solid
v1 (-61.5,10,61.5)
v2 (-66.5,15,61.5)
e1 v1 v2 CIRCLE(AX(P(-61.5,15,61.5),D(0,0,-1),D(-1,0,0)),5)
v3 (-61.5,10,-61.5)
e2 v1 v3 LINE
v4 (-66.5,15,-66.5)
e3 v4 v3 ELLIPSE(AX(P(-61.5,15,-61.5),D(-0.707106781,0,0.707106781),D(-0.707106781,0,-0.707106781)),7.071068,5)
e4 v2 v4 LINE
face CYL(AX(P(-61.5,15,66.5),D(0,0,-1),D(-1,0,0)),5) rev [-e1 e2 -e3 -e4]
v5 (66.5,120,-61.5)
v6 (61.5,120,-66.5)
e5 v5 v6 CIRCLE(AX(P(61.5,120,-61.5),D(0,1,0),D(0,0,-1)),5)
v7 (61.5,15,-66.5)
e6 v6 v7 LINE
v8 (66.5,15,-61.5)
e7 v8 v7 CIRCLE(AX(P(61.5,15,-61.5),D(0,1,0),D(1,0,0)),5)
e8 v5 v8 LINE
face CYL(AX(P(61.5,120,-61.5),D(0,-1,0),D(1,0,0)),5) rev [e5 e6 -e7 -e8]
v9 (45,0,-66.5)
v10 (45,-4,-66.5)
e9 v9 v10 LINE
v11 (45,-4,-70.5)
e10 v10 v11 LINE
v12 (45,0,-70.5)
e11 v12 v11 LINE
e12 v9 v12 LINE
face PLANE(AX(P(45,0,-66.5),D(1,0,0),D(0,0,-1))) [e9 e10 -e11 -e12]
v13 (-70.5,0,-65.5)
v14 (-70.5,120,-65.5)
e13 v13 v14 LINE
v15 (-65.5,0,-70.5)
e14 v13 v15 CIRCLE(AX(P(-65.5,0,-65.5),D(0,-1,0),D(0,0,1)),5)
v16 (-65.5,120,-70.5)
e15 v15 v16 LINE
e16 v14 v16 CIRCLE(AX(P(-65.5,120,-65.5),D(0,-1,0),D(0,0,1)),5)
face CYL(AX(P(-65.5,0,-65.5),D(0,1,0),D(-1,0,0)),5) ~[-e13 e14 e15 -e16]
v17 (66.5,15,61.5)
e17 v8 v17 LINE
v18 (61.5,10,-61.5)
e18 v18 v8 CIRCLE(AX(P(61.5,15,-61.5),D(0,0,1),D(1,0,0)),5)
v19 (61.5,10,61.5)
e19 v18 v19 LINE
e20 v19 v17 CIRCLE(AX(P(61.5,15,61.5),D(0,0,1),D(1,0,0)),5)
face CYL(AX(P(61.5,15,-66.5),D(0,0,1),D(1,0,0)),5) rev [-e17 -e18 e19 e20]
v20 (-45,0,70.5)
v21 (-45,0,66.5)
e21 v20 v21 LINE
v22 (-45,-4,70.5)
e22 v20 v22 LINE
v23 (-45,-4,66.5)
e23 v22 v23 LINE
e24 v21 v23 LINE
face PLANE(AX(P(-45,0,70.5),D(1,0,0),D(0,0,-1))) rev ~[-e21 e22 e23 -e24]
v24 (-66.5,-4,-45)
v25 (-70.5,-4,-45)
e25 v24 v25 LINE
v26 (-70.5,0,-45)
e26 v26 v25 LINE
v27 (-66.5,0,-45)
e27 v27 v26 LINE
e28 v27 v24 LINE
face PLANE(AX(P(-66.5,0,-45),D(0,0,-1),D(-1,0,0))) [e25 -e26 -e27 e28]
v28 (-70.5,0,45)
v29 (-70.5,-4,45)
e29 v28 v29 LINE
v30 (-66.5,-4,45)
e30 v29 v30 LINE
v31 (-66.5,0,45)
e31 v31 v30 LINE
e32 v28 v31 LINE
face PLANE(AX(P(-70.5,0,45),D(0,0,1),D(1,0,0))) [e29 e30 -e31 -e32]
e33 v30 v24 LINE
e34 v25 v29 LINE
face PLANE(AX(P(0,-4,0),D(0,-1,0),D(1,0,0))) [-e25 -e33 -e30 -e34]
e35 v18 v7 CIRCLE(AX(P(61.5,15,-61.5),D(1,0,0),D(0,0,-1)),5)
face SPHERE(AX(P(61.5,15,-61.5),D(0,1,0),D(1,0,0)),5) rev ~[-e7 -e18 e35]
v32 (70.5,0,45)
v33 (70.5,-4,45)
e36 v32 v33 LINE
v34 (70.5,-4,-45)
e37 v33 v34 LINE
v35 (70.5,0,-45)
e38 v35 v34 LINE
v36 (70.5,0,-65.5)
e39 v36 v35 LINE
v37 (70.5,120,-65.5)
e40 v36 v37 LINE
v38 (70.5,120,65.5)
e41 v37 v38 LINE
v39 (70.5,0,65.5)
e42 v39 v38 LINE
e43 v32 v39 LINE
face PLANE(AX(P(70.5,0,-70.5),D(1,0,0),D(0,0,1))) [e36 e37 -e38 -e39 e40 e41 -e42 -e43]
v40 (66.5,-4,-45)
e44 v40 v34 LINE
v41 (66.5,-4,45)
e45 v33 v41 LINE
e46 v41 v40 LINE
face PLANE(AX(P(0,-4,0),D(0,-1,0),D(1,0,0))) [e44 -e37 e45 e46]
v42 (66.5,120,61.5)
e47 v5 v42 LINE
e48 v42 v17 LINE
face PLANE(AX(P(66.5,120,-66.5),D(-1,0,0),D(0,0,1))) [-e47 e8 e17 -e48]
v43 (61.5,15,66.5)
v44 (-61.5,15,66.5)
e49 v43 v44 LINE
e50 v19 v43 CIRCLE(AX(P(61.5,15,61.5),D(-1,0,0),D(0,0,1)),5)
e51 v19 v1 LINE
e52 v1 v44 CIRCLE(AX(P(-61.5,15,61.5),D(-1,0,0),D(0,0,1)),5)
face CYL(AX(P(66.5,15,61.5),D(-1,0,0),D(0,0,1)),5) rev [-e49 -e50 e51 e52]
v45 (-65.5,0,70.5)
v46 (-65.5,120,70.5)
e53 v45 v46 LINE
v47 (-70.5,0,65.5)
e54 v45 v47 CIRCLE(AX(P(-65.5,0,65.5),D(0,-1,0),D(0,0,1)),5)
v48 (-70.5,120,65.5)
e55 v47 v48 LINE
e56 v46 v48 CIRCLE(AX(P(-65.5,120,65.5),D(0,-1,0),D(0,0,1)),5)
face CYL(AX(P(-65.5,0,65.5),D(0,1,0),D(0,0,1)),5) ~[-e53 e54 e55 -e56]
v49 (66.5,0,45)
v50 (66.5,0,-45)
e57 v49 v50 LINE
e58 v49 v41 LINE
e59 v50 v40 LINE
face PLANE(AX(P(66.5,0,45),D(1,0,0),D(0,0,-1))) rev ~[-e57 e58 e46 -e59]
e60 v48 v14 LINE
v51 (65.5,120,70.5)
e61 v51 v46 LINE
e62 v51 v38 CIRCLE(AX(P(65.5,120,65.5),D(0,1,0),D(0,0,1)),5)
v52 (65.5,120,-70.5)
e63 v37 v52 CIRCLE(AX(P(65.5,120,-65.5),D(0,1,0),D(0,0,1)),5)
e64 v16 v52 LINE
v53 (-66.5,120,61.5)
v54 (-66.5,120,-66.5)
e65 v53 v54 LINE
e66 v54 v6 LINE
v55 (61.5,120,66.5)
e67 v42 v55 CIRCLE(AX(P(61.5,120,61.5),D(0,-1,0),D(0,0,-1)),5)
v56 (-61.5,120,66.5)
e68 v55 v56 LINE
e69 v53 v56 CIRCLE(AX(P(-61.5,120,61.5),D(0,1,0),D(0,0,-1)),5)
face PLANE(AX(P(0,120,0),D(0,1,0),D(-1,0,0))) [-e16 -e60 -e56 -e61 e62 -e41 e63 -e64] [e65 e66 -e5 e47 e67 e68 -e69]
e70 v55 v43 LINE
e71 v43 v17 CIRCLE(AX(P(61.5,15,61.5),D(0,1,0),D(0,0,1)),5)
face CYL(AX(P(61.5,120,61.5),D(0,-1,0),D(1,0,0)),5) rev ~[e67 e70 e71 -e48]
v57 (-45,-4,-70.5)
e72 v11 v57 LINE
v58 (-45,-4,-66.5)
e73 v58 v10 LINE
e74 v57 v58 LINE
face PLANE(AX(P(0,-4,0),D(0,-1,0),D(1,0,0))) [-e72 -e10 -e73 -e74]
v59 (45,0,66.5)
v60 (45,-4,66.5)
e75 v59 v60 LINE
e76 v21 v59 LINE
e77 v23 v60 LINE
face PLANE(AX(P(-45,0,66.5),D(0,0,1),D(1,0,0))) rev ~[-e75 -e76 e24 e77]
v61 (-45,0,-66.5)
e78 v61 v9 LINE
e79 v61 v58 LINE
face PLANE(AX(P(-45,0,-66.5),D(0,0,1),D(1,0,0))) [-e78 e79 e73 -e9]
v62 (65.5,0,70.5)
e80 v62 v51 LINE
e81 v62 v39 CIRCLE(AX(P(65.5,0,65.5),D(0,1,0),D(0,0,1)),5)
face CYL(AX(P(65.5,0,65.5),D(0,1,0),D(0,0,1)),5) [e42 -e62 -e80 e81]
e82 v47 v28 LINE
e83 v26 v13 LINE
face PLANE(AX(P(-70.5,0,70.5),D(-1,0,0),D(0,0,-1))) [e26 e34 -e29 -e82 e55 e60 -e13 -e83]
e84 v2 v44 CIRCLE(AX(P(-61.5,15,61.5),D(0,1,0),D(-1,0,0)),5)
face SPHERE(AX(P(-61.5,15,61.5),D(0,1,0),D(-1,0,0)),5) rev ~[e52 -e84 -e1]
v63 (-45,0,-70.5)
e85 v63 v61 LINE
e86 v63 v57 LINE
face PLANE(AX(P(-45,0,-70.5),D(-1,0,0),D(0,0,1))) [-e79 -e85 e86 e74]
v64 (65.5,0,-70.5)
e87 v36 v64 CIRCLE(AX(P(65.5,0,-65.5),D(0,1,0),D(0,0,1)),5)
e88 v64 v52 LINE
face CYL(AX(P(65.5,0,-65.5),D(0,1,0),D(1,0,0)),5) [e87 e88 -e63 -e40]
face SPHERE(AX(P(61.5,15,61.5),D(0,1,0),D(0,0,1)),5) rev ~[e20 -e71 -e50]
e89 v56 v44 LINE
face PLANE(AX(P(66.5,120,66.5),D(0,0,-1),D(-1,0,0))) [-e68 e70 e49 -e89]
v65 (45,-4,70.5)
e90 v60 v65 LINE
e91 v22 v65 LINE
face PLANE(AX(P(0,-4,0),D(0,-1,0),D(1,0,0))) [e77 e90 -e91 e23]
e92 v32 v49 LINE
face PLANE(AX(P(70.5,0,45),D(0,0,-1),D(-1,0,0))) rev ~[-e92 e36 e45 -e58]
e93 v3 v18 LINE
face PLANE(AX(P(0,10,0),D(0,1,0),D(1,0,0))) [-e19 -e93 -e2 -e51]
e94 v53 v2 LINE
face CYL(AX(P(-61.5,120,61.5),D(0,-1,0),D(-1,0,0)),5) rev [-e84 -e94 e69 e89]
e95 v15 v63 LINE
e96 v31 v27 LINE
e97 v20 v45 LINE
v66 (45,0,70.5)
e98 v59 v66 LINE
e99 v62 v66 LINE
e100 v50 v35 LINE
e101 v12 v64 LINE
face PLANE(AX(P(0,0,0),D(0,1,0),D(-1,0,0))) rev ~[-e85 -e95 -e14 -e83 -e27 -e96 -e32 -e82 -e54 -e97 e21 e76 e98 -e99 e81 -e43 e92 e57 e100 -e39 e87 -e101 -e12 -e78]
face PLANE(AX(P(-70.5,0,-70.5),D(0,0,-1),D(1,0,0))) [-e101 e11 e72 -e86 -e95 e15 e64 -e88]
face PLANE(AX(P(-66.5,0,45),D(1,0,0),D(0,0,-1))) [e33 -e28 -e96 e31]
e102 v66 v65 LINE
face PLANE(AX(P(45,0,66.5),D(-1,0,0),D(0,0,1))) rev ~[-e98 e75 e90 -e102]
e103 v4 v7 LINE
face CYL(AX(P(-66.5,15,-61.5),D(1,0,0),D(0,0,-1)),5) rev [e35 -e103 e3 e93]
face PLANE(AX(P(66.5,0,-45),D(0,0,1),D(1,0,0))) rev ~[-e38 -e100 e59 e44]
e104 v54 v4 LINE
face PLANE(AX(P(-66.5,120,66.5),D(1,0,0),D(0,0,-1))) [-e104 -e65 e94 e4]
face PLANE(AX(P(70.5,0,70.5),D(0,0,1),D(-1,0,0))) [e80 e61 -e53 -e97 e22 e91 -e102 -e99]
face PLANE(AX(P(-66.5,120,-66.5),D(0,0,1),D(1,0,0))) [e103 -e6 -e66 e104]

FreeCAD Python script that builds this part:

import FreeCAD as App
import Part
import Sketcher


def edges_at(feature, points):
    """Names of the edges that pass closest to the given points."""
    edges = feature.Shape.Edges
    near = lambda p: min(range(len(edges)), key=lambda i: edges[i].distToShape(Part.Vertex(*p))[0])
    return sorted({f"Edge{near(p) + 1}" for p in points})


def add_polygon(sketch, points):
    """Adds a closed chain of lines whose ends are joined by coincident constraints."""
    first, n = sketch.GeometryCount, len(points)
    for a, b in zip(points, points[1:] + points[:1]):
        sketch.addGeometry(Part.LineSegment(App.Vector(*a, 0), App.Vector(*b, 0)), False)
    for i in range(n):
        sketch.addConstraint(Sketcher.Constraint("Coincident", first + i, 2, first + (i + 1) % n, 1))

doc = App.newDocument("Part")
body = doc.addObject("PartDesign::Body", "Body")

sketch1 = body.newObject("Sketcher::SketchObject", "Sketch")
sketch1.AttachmentSupport = (doc.getObject("XZ_Plane"), [""])
sketch1.MapMode = "FlatFace"
add_polygon(sketch1, [(-70.5, 70.5), (70.5, 70.5), (70.5, -70.5), (-70.5, -70.5)])
sketch1.addConstraint(Sketcher.Constraint("Horizontal", 0))
sketch1.addConstraint(Sketcher.Constraint("Vertical", 1))
sketch1.addConstraint(Sketcher.Constraint("Horizontal", 2))
sketch1.addConstraint(Sketcher.Constraint("Vertical", 3))
sketch1.addConstraint(Sketcher.Constraint("Symmetric", 0, 2, 2, 2, -1, 1))
sketch1.addConstraint(Sketcher.Constraint("Equal", 2, 1))
sketch1.addConstraint(Sketcher.Constraint("DistanceX", 0, 1, 0, 2, 141.0))
pad1 = body.newObject("PartDesign::Pad", "Pad")
pad1.Profile = sketch1
pad1.Length = 120
pad1.Reversed = True

sketch2 = body.newObject("Sketcher::SketchObject", "Sketch001")
sketch2.AttachmentSupport = (doc.getObject("XZ_Plane"), [""])
sketch2.MapMode = "FlatFace"
sketch2.AttachmentOffset = App.Placement(App.Vector(0, 0, -120), App.Rotation())
add_polygon(sketch2, [(-66.5, 66.5), (66.5, 66.5), (66.5, -66.5), (-66.5, -66.5)])
sketch2.addConstraint(Sketcher.Constraint("Horizontal", 0))
sketch2.addConstraint(Sketcher.Constraint("Vertical", 1))
sketch2.addConstraint(Sketcher.Constraint("Horizontal", 2))
sketch2.addConstraint(Sketcher.Constraint("Vertical", 3))
sketch2.addConstraint(Sketcher.Constraint("Symmetric", 0, 2, 2, 2, -1, 1))
sketch2.addConstraint(Sketcher.Constraint("Equal", 2, 1))
sketch2.addConstraint(Sketcher.Constraint("DistanceX", 0, 1, 0, 2, 133.0))
pocket1 = body.newObject("PartDesign::Pocket", "Pocket")
pocket1.Profile = sketch2
pocket1.Length = 110
pocket1.Reversed = True
doc.recompute()

fillet = body.newObject("PartDesign::Fillet", "Fillet")
fillet.Base = (pocket1, edges_at(pocket1, [
    (70.5, 60, 70.5),
    (66.5, 65, 66.5),
    (70.5, 60, -70.5),
    (66.5, 65, -66.5),
    (-66.5, 65, 66.5),
    (-66.5, 10, 0),
    (0, 10, 66.5),
    (66.5, 10, 0),
    (0, 10, -66.5),
    (-70.5, 60, -70.5),
    (-70.5, 60, 70.5),
]))
fillet.Radius = 5

sketch3 = body.newObject("Sketcher::SketchObject", "Sketch002")
sketch3.AttachmentSupport = (doc.getObject("XZ_Plane"), [""])
sketch3.MapMode = "FlatFace"
add_polygon(sketch3, [(45, 70.5), (-45, 70.5), (-45, 66.5), (45, 66.5)])
add_polygon(sketch3, [(-66.5, 45), (-70.5, 45), (-70.5, -45), (-66.5, -45)])
add_polygon(sketch3, [(70.5, -45), (70.5, 45), (66.5, 45), (66.5, -45)])
add_polygon(sketch3, [(-45, -66.5), (-45, -70.5), (45, -70.5), (45, -66.5)])
sketch3.addConstraint(Sketcher.Constraint("Horizontal", 0))
sketch3.addConstraint(Sketcher.Constraint("Vertical", 1))
sketch3.addConstraint(Sketcher.Constraint("Horizontal", 2))
sketch3.addConstraint(Sketcher.Constraint("Vertical", 3))
sketch3.addConstraint(Sketcher.Constraint("Horizontal", 4))
sketch3.addConstraint(Sketcher.Constraint("Vertical", 5))
sketch3.addConstraint(Sketcher.Constraint("Horizontal", 6))
sketch3.addConstraint(Sketcher.Constraint("Vertical", 7))
sketch3.addConstraint(Sketcher.Constraint("Vertical", 8))
sketch3.addConstraint(Sketcher.Constraint("Horizontal", 9))
sketch3.addConstraint(Sketcher.Constraint("Vertical", 10))
sketch3.addConstraint(Sketcher.Constraint("Horizontal", 11))
sketch3.addConstraint(Sketcher.Constraint("Vertical", 12))
sketch3.addConstraint(Sketcher.Constraint("Horizontal", 13))
sketch3.addConstraint(Sketcher.Constraint("Vertical", 14))
sketch3.addConstraint(Sketcher.Constraint("Horizontal", 15))
sketch3.addConstraint(Sketcher.Constraint("Symmetric", 5, 2, 8, 2, -1, 1))
sketch3.addConstraint(Sketcher.Constraint("Symmetric", 7, 2, 10, 2, -1, 1))
sketch3.addConstraint(Sketcher.Constraint("Symmetric", 3, 2, 12, 2, -1, 1))
sketch3.addConstraint(Sketcher.Constraint("Symmetric", 1, 2, 14, 2, -1, 1))
sketch3.addConstraint(Sketcher.Constraint("Horizontal", 7, 2, 8, 2))
sketch3.addConstraint(Sketcher.Constraint("Vertical", 1, 2, 12, 2))
sketch3.addConstraint(Sketcher.Constraint("Equal", 11, 1))
sketch3.addConstraint(Sketcher.Constraint("Equal", 15, 5))
sketch3.addConstraint(Sketcher.Constraint("DistanceX", 0, 2, 0, 1, 90.0))
sketch3.addConstraint(Sketcher.Constraint("DistanceX", 4, 2, 4, 1, 4.0))
sketch3.addConstraint(Sketcher.Constraint("DistanceX", 7, 2, 8, 2, 137.0))
sketch3.addConstraint(Sketcher.Constraint("DistanceY", -1, 1, 0, 2, 70.5))
pad2 = body.newObject("PartDesign::Pad", "Pad001")
pad2.Profile = sketch3
pad2.Length = 4

doc.recompute()
